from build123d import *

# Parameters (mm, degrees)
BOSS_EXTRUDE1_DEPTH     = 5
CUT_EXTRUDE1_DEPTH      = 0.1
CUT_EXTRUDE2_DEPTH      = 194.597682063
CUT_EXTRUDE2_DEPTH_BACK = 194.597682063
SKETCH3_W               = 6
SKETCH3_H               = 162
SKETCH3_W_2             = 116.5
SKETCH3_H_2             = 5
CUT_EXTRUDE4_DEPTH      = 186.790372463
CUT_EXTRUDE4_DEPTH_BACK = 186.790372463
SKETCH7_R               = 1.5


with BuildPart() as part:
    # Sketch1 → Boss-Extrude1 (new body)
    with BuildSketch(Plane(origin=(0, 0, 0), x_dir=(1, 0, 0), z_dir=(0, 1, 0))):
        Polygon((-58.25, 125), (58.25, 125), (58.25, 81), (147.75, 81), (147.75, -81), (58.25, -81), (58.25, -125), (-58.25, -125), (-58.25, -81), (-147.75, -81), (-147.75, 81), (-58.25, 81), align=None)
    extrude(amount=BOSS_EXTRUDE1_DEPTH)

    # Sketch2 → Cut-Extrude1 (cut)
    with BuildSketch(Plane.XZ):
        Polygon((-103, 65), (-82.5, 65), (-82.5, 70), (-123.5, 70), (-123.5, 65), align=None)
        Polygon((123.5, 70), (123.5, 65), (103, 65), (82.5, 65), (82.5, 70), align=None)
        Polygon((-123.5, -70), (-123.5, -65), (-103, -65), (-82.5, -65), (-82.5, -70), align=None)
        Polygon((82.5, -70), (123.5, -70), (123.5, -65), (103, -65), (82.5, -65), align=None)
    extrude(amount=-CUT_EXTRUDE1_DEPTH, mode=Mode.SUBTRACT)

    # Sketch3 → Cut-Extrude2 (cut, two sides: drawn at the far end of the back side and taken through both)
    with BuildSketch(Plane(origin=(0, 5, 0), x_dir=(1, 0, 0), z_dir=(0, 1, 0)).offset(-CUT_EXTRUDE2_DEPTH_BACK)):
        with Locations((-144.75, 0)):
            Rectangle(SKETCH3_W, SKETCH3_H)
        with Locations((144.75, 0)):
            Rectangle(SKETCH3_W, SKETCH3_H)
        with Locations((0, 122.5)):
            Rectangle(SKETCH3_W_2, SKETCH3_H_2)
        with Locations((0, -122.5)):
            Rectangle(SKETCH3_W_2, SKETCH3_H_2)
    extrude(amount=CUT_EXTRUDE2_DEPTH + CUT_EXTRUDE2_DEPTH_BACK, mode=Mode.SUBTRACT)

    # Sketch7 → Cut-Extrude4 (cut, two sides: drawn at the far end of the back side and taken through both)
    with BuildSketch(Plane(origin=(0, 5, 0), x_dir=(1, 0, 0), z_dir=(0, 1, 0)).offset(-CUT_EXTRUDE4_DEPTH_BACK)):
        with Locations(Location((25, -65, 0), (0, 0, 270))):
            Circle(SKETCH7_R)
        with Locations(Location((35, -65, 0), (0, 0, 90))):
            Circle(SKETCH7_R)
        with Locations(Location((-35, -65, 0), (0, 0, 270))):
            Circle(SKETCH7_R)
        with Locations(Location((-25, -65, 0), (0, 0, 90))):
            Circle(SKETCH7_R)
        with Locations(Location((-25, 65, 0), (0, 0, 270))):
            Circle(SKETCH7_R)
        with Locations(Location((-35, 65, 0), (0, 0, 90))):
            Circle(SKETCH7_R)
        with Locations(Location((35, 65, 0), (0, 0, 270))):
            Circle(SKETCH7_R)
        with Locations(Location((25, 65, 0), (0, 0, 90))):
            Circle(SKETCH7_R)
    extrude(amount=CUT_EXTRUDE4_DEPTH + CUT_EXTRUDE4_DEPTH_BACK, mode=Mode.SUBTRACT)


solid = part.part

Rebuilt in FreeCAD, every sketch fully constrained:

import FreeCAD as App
import Part
import Sketcher


def add_polygon(sketch, points):
    """Adds a closed chain of lines whose ends are joined by coincident constraints."""
    first, n = sketch.GeometryCount, len(points)
    for a, b in zip(points, points[1:] + points[:1]):
        sketch.addGeometry(Part.LineSegment(App.Vector(*a, 0), App.Vector(*b, 0)), False)
    for i in range(n):
        sketch.addConstraint(Sketcher.Constraint("Coincident", first + i, 2, first + (i + 1) % n, 1))

doc = App.newDocument("Part")
body = doc.addObject("PartDesign::Body", "Body")

# Sketch on XZ plane
sketch1 = doc.addObject("Sketcher::SketchObject", "Sketch")
body.addObject(sketch1)
sketch1.AttachmentSupport = (doc.XZ_Plane, [""])
sketch1.MapMode = "FlatFace"
add_polygon(sketch1, [(58.25, -125), (-58.25, -125), (-58.25, -81), (-147.75, -81), (-147.75, 81), (-58.25, 81), (-58.25, 125), (58.25, 125), (58.25, 81), (147.75, 81), (147.75, -81), (58.25, -81)])  # lines 0-11
sketch1.addConstraint(Sketcher.Constraint("Horizontal", 0))
sketch1.addConstraint(Sketcher.Constraint("Vertical", 1))
sketch1.addConstraint(Sketcher.Constraint("Horizontal", 2))
sketch1.addConstraint(Sketcher.Constraint("Vertical", 3))
sketch1.addConstraint(Sketcher.Constraint("Horizontal", 4))
sketch1.addConstraint(Sketcher.Constraint("Vertical", 5))
sketch1.addConstraint(Sketcher.Constraint("Horizontal", 6))
sketch1.addConstraint(Sketcher.Constraint("Vertical", 7))
sketch1.addConstraint(Sketcher.Constraint("Horizontal", 8))
sketch1.addConstraint(Sketcher.Constraint("Vertical", 9))
sketch1.addConstraint(Sketcher.Constraint("Horizontal", 10))
sketch1.addConstraint(Sketcher.Constraint("Vertical", 11))
sketch1.addConstraint(Sketcher.Constraint("Symmetric", 0, 2, 6, 2, -1, 1))
sketch1.addConstraint(Sketcher.Constraint("Symmetric", 2, 2, 8, 2, -1, 1))
sketch1.addConstraint(Sketcher.Constraint("Symmetric", 4, 2, 10, 2, -1, 1))
sketch1.addConstraint(Sketcher.Constraint("Symmetric", 4, 2, 7, 2, -2))
sketch1.addConstraint(Sketcher.Constraint("DistanceY", 1, 1, 1, 2, 44.0))
sketch1.addConstraint(Sketcher.Constraint("DistanceY", 3, 1, 3, 2, 162.0))
sketch1.addConstraint(Sketcher.Constraint("DistanceX", 0, 2, 0, 1, 116.5))
sketch1.addConstraint(Sketcher.Constraint("DistanceX", 2, 2, 2, 1, 89.5))
pad1 = doc.addObject("PartDesign::Pad", "Pad")
body.addObject(pad1)
pad1.Profile = sketch1
pad1.Length = 5
pad1.Reversed = True

# Sketch on XZ plane
sketch2 = doc.addObject("Sketcher::SketchObject", "Sketch001")
body.addObject(sketch2)
sketch2.AttachmentSupport = (doc.XZ_Plane, [""])
sketch2.MapMode = "FlatFace"
add_polygon(sketch2, [(-82.5, 65), (-82.5, 70), (-123.5, 70), (-123.5, 65)])  # lines 0-3
add_polygon(sketch2, [(123.5, 65), (123.5, 70), (82.5, 70), (82.5, 65)])  # lines 4-7
add_polygon(sketch2, [(-123.5, -65), (-123.5, -70), (-82.5, -70), (-82.5, -65)])  # lines 8-11
add_polygon(sketch2, [(82.5, -70), (123.5, -70), (123.5, -65), (82.5, -65)])  # lines 12-15
sketch2.addConstraint(Sketcher.Constraint("Vertical", 0))
sketch2.addConstraint(Sketcher.Constraint("Horizontal", 1))
sketch2.addConstraint(Sketcher.Constraint("Vertical", 2))
sketch2.addConstraint(Sketcher.Constraint("Horizontal", 3))
sketch2.addConstraint(Sketcher.Constraint("Vertical", 4))
sketch2.addConstraint(Sketcher.Constraint("Horizontal", 5))
sketch2.addConstraint(Sketcher.Constraint("Vertical", 6))
sketch2.addConstraint(Sketcher.Constraint("Horizontal", 7))
sketch2.addConstraint(Sketcher.Constraint("Vertical", 8))
sketch2.addConstraint(Sketcher.Constraint("Horizontal", 9))
sketch2.addConstraint(Sketcher.Constraint("Vertical", 10))
sketch2.addConstraint(Sketcher.Constraint("Horizontal", 11))
sketch2.addConstraint(Sketcher.Constraint("Horizontal", 12))
sketch2.addConstraint(Sketcher.Constraint("Vertical", 13))
sketch2.addConstraint(Sketcher.Constraint("Horizontal", 14))
sketch2.addConstraint(Sketcher.Constraint("Vertical", 15))
sketch2.addConstraint(Sketcher.Constraint("Symmetric", 4, 2, 8, 2, -1, 1))
sketch2.addConstraint(Sketcher.Constraint("Symmetric", 6, 2, 10, 2, -1, 1))
sketch2.addConstraint(Sketcher.Constraint("Symmetric", 1, 2, 12, 2, -1, 1))
sketch2.addConstraint(Sketcher.Constraint("Symmetric", 3, 2, 14, 2, -1, 1))
sketch2.addConstraint(Sketcher.Constraint("Symmetric", 1, 2, 4, 2, -2))
sketch2.addConstraint(Sketcher.Constraint("Symmetric", 3, 2, 6, 2, -2))
sketch2.addConstraint(Sketcher.Constraint("DistanceX", 1, 2, 1, 1, 41.0))
sketch2.addConstraint(Sketcher.Constraint("DistanceY", 0, 1, 0, 2, 5.0))
sketch2.addConstraint(Sketcher.Constraint("DistanceY", -1, 1, 0, 2, 70.0))
sketch2.addConstraint(Sketcher.Constraint("DistanceX", 0, 2, 4, 2, 206.0))
pocket1 = doc.addObject("PartDesign::Pocket", "Pocket")
body.addObject(pocket1)
pocket1.Profile = sketch2
pocket1.Length = 0.1

# Sketch on XZ plane
sketch3 = doc.addObject("Sketcher::SketchObject", "Sketch002")
body.addObject(sketch3)
sketch3.AttachmentSupport = (doc.XZ_Plane, [""])
sketch3.MapMode = "FlatFace"
sketch3.AttachmentOffset = App.Placement(App.Vector(0, 0, -5), App.Rotation())
add_polygon(sketch3, [(-147.75, -81), (-147.75, 81), (-141.75, 81), (-141.75, -81)])  # lines 0-3
add_polygon(sketch3, [(141.75, -81), (141.75, 81), (147.75, 81), (147.75, -81)])  # lines 4-7
add_polygon(sketch3, [(-58.25, -125), (-58.25, -120), (58.25, -120), (58.25, -125)])  # lines 8-11
add_polygon(sketch3, [(-58.25, 120), (-58.25, 125), (58.25, 125), (58.25, 120)])  # lines 12-15
sketch3.addConstraint(Sketcher.Constraint("Vertical", 0))
sketch3.addConstraint(Sketcher.Constraint("Horizontal", 1))
sketch3.addConstraint(Sketcher.Constraint("Vertical", 2))
sketch3.addConstraint(Sketcher.Constraint("Horizontal", 3))
sketch3.addConstraint(Sketcher.Constraint("Vertical", 4))
sketch3.addConstraint(Sketcher.Constraint("Horizontal", 5))
sketch3.addConstraint(Sketcher.Constraint("Vertical", 6))
sketch3.addConstraint(Sketcher.Constraint("Horizontal", 7))
sketch3.addConstraint(Sketcher.Constraint("Vertical", 8))
sketch3.addConstraint(Sketcher.Constraint("Horizontal", 9))
sketch3.addConstraint(Sketcher.Constraint("Vertical", 10))
sketch3.addConstraint(Sketcher.Constraint("Horizontal", 11))
sketch3.addConstraint(Sketcher.Constraint("Vertical", 12))
sketch3.addConstraint(Sketcher.Constraint("Horizontal", 13))
sketch3.addConstraint(Sketcher.Constraint("Vertical", 14))
sketch3.addConstraint(Sketcher.Constraint("Horizontal", 15))
sketch3.addConstraint(Sketcher.Constraint("Symmetric", 2, 2, 4, 2, -1, 1))
sketch3.addConstraint(Sketcher.Constraint("Symmetric", 0, 2, 6, 2, -1, 1))
sketch3.addConstraint(Sketcher.Constraint("Symmetric", 10, 2, 12, 2, -1, 1))
sketch3.addConstraint(Sketcher.Constraint("Symmetric", 8, 2, 14, 2, -1, 1))
sketch3.addConstraint(Sketcher.Constraint("Horizontal", 1, 2, 4, 2))
sketch3.addConstraint(Sketcher.Constraint("Vertical", 11, 2, 12, 2))
sketch3.addConstraint(Sketcher.Constraint("DistanceX", 1, 1, 1, 2, 6.0))
sketch3.addConstraint(Sketcher.Constraint("DistanceY", 0, 1, 0, 2, 162.0))
sketch3.addConstraint(Sketcher.Constraint("DistanceY", 8, 1, 8, 2, 5.0))
sketch3.addConstraint(Sketcher.Constraint("DistanceX", 9, 1, 9, 2, 116.5))
sketch3.addConstraint(Sketcher.Constraint("DistanceY", 8, 2, -1, 1, 120.0))
sketch3.addConstraint(Sketcher.Constraint("DistanceX", 8, 2, 7, 2, 200.0))
pocket2 = doc.addObject("PartDesign::Pocket", "Pocket001")
body.addObject(pocket2)
pocket2.Profile = sketch3
pocket2.Type = "ThroughAll"
pocket2.Midplane = True

# Sketch on XZ plane
sketch4 = doc.addObject("Sketcher::SketchObject", "Sketch003")
body.addObject(sketch4)
sketch4.AttachmentSupport = (doc.XZ_Plane, [""])
sketch4.MapMode = "FlatFace"
sketch4.AttachmentOffset = App.Placement(App.Vector(0, 0, -5), App.Rotation())
sketch4.addGeometry(Part.Circle(App.Vector(25, 65, 0), App.Vector(0, 0, 1), 1.5), False)
sketch4.addGeometry(Part.Circle(App.Vector(35, 65, 0), App.Vector(0, 0, 1), 1.5), False)
sketch4.addGeometry(Part.Circle(App.Vector(-35, 65, 0), App.Vector(0, 0, 1), 1.5), False)
sketch4.addGeometry(Part.Circle(App.Vector(-25, 65, 0), App.Vector(0, 0, 1), 1.5), False)
sketch4.addGeometry(Part.Circle(App.Vector(-25, -65, 0), App.Vector(0, 0, 1), 1.5), False)
sketch4.addGeometry(Part.Circle(App.Vector(-35, -65, 0), App.Vector(0, 0, 1), 1.5), False)
sketch4.addGeometry(Part.Circle(App.Vector(35, -65, 0), App.Vector(0, 0, 1), 1.5), False)
sketch4.addGeometry(Part.Circle(App.Vector(25, -65, 0), App.Vector(0, 0, 1), 1.5), False)
sketch4.addConstraint(Sketcher.Constraint("Equal", 0, 1))
sketch4.addConstraint(Sketcher.Constraint("Equal", 1, 2))
sketch4.addConstraint(Sketcher.Constraint("Equal", 2, 3))
sketch4.addConstraint(Sketcher.Constraint("Equal", 3, 4))
sketch4.addConstraint(Sketcher.Constraint("Equal", 4, 5))
sketch4.addConstraint(Sketcher.Constraint("Equal", 5, 6))
sketch4.addConstraint(Sketcher.Constraint("Equal", 6, 7))
sketch4.addConstraint(Sketcher.Constraint("Symmetric", 0, 3, 4, 3, -1, 1))
sketch4.addConstraint(Sketcher.Constraint("Symmetric", 1, 3, 5, 3, -1, 1))
sketch4.addConstraint(Sketcher.Constraint("Symmetric", 2, 3, 6, 3, -1, 1))
sketch4.addConstraint(Sketcher.Constraint("Symmetric", 3, 3, 7, 3, -1, 1))
sketch4.addConstraint(Sketcher.Constraint("Symmetric", 1, 3, 2, 3, -2))
sketch4.addConstraint(Sketcher.Constraint("Symmetric", 0, 3, 3, 3, -2))
sketch4.addConstraint(Sketcher.Constraint("Horizontal", 0, 3, 1, 3))
sketch4.addConstraint(Sketcher.Constraint("Diameter", 0, 3.0))
sketch4.addConstraint(Sketcher.Constraint("DistanceX", -1, 1, 0, 3, 25.0))
sketch4.addConstraint(Sketcher.Constraint("DistanceY", -1, 1, 0, 3, 65.0))
sketch4.addConstraint(Sketcher.Constraint("DistanceX", -1, 1, 1, 3, 35.0))
pocket3 = doc.addObject("PartDesign::Pocket", "Pocket002")
body.addObject(pocket3)
pocket3.Profile = sketch4
pocket3.Type = "ThroughAll"
pocket3.Midplane = True

doc.recompute()
